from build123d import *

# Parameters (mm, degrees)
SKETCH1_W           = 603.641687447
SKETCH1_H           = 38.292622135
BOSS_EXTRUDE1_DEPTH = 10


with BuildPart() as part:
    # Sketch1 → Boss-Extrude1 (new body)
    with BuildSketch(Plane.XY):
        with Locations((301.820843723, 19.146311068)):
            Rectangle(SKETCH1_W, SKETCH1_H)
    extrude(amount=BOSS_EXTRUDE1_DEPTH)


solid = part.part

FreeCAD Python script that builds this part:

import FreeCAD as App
import Part
import Sketcher
from FreeCAD import Vector
Q = App.Units.Quantity

doc = App.newDocument("Part")
body = doc.addObject("PartDesign::Body", "Body")

# Sketch on XY plane
sketch1 = body.newObject("Sketcher::SketchObject", "Sketch")
sketch1.AttachmentSupport = (doc.getObject("XY_Plane"), [""])
sketch1.MapMode = "FlatFace"
sketch1.addGeometry([
    Part.LineSegment(Vector(0, 38, 0), Vector(0, 0, 0)),
    Part.LineSegment(Vector(0, 0, 0), Vector(604, 0, 0)),
    Part.LineSegment(Vector(604, 0, 0), Vector(604, 38, 0)),
    Part.LineSegment(Vector(604, 38, 0), Vector(0, 38, 0)),
], False)
sketch1.addConstraint([
    Sketcher.Constraint("Coincident", 0, 2, 1, 1),
    Sketcher.Constraint("Coincident", 1, 2, 2, 1),
    Sketcher.Constraint("Coincident", 2, 2, 3, 1),
    Sketcher.Constraint("Coincident", 3, 2, 0, 1),
    Sketcher.Constraint("Vertical", 0),
    Sketcher.Constraint("Horizontal", 1),
    Sketcher.Constraint("Vertical", 2),
    Sketcher.Constraint("Horizontal", 3),
    Sketcher.Constraint("Coincident", 0, 2, -1, 1),
    Sketcher.Constraint("DistanceX", 1, 1, 1, 2, Q("603.641687 mm")),
    Sketcher.Constraint("DistanceY", 0, 2, 0, 1, Q("38.292622 mm")),
])
pad1 = body.newObject("PartDesign::Pad", "Pad")
pad1.Profile = sketch1
pad1.Length = 10

doc.recompute()
